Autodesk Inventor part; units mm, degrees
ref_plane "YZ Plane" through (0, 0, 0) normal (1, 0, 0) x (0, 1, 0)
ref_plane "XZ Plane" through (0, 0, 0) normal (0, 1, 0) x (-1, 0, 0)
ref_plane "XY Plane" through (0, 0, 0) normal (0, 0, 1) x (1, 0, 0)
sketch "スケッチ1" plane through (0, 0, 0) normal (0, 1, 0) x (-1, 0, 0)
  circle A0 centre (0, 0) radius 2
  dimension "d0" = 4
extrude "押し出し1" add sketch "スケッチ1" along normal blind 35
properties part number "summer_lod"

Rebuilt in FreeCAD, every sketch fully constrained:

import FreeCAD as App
import Part
import Sketcher
Q = App.Units.Quantity

doc = App.newDocument("Part")
params = doc.addObject("Spreadsheet::Sheet", "Params")
for row, (alias, value) in enumerate([
    ("sketch1_diameter", "4 mm"),
    ("pad1_length", "35 mm"),
], start=1):
    params.set(f"A{row}", alias)
    params.set(f"B{row}", "=" + value)
    params.setAlias(f"B{row}", alias)

body = doc.addObject("PartDesign::Body", "Body")

sketch1 = body.newObject("Sketcher::SketchObject", "Sketch")
sketch1.AttachmentSupport = (doc.getObject("XZ_Plane"), [""])
sketch1.MapMode = "FlatFace"
sketch1.addGeometry(Part.Circle(App.Vector(0, 0, 0), App.Vector(0, 0, 1), 2), False)
sketch1.addConstraint(Sketcher.Constraint("Coincident", 0, 3, -1, 1))
sketch1.addConstraint(Sketcher.Constraint("Diameter", 0, Q("4 mm")))
sketch1.setExpression("Constraints[1]", "Params.sketch1_diameter")
pad1 = body.newObject("PartDesign::Pad", "Pad")
pad1.Profile = sketch1
pad1.setExpression("Length", "Params.pad1_length")
pad1.Reversed = True

doc.recompute()
